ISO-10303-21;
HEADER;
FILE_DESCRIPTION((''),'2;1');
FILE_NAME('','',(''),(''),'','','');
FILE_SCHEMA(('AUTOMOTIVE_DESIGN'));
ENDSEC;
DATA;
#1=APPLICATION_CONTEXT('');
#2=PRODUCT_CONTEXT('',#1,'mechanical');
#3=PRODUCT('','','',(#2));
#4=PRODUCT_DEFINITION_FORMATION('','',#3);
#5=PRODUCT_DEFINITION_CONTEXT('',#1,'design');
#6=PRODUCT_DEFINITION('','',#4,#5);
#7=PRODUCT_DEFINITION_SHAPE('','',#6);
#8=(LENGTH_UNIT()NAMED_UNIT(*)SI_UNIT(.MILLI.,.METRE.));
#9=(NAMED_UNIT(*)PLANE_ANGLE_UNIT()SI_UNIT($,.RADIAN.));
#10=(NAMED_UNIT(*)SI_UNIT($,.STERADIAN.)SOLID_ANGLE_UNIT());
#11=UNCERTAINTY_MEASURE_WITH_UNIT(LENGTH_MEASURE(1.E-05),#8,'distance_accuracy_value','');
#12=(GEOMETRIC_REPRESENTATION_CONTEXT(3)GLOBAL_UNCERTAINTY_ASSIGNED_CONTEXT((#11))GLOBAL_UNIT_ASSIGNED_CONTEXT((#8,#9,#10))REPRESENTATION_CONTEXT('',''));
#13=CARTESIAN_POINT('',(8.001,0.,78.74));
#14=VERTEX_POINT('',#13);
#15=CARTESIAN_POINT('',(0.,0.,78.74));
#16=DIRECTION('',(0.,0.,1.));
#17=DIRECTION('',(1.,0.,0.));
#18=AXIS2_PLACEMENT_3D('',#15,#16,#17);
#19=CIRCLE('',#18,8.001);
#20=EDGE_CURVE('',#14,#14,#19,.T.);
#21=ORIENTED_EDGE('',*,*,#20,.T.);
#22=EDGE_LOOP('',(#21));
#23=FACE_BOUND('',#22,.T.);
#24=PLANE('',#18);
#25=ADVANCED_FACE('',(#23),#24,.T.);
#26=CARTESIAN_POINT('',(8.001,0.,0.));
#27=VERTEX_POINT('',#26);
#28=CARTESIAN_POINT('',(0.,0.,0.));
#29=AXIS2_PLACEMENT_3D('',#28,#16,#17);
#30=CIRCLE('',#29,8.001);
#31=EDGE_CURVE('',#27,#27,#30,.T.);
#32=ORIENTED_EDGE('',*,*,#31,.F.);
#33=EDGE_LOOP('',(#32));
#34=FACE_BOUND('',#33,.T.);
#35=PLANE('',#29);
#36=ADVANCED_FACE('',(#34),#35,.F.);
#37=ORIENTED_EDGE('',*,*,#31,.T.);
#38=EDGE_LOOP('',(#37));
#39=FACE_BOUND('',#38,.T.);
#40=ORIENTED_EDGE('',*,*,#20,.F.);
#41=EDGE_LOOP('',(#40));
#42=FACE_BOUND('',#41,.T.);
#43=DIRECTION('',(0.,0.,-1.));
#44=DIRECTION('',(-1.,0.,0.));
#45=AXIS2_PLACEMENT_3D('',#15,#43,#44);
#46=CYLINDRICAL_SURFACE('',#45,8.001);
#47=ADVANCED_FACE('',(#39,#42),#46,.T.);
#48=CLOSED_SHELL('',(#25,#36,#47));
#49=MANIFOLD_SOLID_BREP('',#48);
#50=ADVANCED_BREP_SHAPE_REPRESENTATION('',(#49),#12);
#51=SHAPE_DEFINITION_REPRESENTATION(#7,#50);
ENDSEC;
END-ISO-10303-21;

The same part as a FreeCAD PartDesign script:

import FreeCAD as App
import Part
import Sketcher
Q = App.Units.Quantity

doc = App.newDocument("Part")
body = doc.addObject("PartDesign::Body", "Body")

sketch1 = body.newObject("Sketcher::SketchObject", "Sketch")
sketch1.AttachmentSupport = (doc.getObject("XY_Plane"), [""])
sketch1.MapMode = "FlatFace"
sketch1.addGeometry(Part.Circle(App.Vector(0, 0, 0), App.Vector(0, 0, 1), 8), False)
sketch1.addConstraint([
    Sketcher.Constraint("Coincident", 0, 3, -1, 1),
    Sketcher.Constraint("Diameter", 0, Q("0.63 in")),
])
pad1 = body.newObject("PartDesign::Pad", "Pad")
pad1.Profile = sketch1
pad1.Length = Q("3.1 in")

doc.recompute()
